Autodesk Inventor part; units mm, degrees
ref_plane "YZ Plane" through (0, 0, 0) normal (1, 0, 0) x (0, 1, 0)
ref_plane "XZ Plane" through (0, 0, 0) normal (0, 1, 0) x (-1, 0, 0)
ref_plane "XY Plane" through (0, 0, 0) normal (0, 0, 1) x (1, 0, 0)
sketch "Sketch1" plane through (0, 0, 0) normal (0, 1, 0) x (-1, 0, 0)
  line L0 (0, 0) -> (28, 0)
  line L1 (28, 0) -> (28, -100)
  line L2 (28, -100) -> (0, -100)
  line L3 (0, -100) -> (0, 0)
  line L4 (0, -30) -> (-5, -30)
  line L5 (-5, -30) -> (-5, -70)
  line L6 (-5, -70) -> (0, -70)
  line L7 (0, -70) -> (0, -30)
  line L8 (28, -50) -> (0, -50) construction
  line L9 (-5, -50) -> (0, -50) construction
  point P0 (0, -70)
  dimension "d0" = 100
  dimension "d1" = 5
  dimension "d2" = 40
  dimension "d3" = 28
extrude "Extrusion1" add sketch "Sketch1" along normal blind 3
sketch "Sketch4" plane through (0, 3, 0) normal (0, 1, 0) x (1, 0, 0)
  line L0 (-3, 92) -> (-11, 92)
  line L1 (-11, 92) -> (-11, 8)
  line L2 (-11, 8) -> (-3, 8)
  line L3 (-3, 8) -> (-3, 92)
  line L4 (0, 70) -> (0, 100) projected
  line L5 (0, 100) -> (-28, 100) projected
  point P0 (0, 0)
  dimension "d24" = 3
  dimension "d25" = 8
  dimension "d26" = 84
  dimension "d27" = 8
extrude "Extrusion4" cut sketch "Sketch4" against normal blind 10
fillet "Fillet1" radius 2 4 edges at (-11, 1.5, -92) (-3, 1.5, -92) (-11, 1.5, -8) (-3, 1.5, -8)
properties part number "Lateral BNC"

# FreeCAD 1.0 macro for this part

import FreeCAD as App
import Part
import Sketcher
from FreeCAD import Vector
Q = App.Units.Quantity


def edges_at(feature, points):
    """Names of the edges that pass closest to the given points."""
    edges = feature.Shape.Edges
    near = lambda p: min(range(len(edges)), key=lambda i: edges[i].distToShape(Part.Vertex(*p))[0])
    return sorted({f"Edge{near(p) + 1}" for p in points})


def add_polygon(sketch, points):
    """Adds a closed chain of lines whose ends are joined by coincident constraints."""
    first, n = sketch.GeometryCount, len(points)
    for a, b in zip(points, points[1:] + points[:1]):
        sketch.addGeometry(Part.LineSegment(App.Vector(*a, 0), App.Vector(*b, 0)), False)
    for i in range(n):
        sketch.addConstraint(Sketcher.Constraint("Coincident", first + i, 2, first + (i + 1) % n, 1))

doc = App.newDocument("Part")
body = doc.addObject("PartDesign::Body", "Body")

# Sketch on XZ plane
sketch1 = body.newObject("Sketcher::SketchObject", "Sketch")
sketch1.AttachmentSupport = (doc.getObject("XZ_Plane"), [""])
sketch1.MapMode = "FlatFace"
add_polygon(sketch1, [(-28, 0), (0, 0), (0, -30), (5, -30), (5, -70), (0, -70), (0, -100), (-28, -100)])  # lines 0-7
sketch1.addConstraint([
    Sketcher.Constraint("Horizontal", 0),
    Sketcher.Constraint("Vertical", 1),
    Sketcher.Constraint("Horizontal", 2),
    Sketcher.Constraint("Vertical", 3),
    Sketcher.Constraint("Horizontal", 4),
    Sketcher.Constraint("Vertical", 5),
    Sketcher.Constraint("Horizontal", 6),
    Sketcher.Constraint("Vertical", 7),
    Sketcher.Constraint("Coincident", 0, 2, -1, 1),
    Sketcher.Constraint("PointOnObject", 4, 2, -2),
    Sketcher.Constraint("Equal", 1, 5),
    Sketcher.Constraint("DistanceX", 0, 1, 0, 2, Q("28 mm")),
    Sketcher.Constraint("DistanceX", 2, 1, 2, 2, Q("5 mm")),
    Sketcher.Constraint("DistanceY", 3, 2, 3, 1, Q("40 mm")),
    Sketcher.Constraint("DistanceY", 7, 1, 7, 2, Q("100 mm")),
])
pad1 = body.newObject("PartDesign::Pad", "Pad")
pad1.Profile = sketch1
pad1.Length = 3
pad1.Reversed = True

# Sketch on XZ plane
sketch2 = body.newObject("Sketcher::SketchObject", "Sketch001")
sketch2.AttachmentSupport = (doc.getObject("XZ_Plane"), [""])
sketch2.MapMode = "FlatFace"
sketch2.AttachmentOffset = App.Placement(Vector(0, 0, -3), App.Rotation())
add_polygon(sketch2, [(-3, -8), (-3, -92), (-11, -92), (-11, -8)])  # lines 0-3
sketch2.addConstraint([
    Sketcher.Constraint("Vertical", 0),
    Sketcher.Constraint("Horizontal", 1),
    Sketcher.Constraint("Vertical", 2),
    Sketcher.Constraint("Horizontal", 3),
    Sketcher.Constraint("DistanceX", 1, 2, 1, 1, Q("8 mm")),
    Sketcher.Constraint("DistanceY", 0, 2, 0, 1, Q("84 mm")),
    Sketcher.Constraint("DistanceX", 0, 2, -1, 1, Q("3 mm")),
    Sketcher.Constraint("DistanceY", 2, 2, -1, 1, Q("8 mm")),
])
pocket1 = body.newObject("PartDesign::Pocket", "Pocket")
pocket1.Profile = sketch2
pocket1.Length = 10
pocket1.Reversed = True
doc.recompute()

fillet = body.newObject("PartDesign::Fillet", "Fillet")
fillet.Base = (pocket1, edges_at(pocket1, [
    (-11, 1.5, -92),
    (-3, 1.5, -92),
    (-11, 1.5, -8),
    (-3, 1.5, -8),
]))
fillet.Radius = 2

doc.recompute()
